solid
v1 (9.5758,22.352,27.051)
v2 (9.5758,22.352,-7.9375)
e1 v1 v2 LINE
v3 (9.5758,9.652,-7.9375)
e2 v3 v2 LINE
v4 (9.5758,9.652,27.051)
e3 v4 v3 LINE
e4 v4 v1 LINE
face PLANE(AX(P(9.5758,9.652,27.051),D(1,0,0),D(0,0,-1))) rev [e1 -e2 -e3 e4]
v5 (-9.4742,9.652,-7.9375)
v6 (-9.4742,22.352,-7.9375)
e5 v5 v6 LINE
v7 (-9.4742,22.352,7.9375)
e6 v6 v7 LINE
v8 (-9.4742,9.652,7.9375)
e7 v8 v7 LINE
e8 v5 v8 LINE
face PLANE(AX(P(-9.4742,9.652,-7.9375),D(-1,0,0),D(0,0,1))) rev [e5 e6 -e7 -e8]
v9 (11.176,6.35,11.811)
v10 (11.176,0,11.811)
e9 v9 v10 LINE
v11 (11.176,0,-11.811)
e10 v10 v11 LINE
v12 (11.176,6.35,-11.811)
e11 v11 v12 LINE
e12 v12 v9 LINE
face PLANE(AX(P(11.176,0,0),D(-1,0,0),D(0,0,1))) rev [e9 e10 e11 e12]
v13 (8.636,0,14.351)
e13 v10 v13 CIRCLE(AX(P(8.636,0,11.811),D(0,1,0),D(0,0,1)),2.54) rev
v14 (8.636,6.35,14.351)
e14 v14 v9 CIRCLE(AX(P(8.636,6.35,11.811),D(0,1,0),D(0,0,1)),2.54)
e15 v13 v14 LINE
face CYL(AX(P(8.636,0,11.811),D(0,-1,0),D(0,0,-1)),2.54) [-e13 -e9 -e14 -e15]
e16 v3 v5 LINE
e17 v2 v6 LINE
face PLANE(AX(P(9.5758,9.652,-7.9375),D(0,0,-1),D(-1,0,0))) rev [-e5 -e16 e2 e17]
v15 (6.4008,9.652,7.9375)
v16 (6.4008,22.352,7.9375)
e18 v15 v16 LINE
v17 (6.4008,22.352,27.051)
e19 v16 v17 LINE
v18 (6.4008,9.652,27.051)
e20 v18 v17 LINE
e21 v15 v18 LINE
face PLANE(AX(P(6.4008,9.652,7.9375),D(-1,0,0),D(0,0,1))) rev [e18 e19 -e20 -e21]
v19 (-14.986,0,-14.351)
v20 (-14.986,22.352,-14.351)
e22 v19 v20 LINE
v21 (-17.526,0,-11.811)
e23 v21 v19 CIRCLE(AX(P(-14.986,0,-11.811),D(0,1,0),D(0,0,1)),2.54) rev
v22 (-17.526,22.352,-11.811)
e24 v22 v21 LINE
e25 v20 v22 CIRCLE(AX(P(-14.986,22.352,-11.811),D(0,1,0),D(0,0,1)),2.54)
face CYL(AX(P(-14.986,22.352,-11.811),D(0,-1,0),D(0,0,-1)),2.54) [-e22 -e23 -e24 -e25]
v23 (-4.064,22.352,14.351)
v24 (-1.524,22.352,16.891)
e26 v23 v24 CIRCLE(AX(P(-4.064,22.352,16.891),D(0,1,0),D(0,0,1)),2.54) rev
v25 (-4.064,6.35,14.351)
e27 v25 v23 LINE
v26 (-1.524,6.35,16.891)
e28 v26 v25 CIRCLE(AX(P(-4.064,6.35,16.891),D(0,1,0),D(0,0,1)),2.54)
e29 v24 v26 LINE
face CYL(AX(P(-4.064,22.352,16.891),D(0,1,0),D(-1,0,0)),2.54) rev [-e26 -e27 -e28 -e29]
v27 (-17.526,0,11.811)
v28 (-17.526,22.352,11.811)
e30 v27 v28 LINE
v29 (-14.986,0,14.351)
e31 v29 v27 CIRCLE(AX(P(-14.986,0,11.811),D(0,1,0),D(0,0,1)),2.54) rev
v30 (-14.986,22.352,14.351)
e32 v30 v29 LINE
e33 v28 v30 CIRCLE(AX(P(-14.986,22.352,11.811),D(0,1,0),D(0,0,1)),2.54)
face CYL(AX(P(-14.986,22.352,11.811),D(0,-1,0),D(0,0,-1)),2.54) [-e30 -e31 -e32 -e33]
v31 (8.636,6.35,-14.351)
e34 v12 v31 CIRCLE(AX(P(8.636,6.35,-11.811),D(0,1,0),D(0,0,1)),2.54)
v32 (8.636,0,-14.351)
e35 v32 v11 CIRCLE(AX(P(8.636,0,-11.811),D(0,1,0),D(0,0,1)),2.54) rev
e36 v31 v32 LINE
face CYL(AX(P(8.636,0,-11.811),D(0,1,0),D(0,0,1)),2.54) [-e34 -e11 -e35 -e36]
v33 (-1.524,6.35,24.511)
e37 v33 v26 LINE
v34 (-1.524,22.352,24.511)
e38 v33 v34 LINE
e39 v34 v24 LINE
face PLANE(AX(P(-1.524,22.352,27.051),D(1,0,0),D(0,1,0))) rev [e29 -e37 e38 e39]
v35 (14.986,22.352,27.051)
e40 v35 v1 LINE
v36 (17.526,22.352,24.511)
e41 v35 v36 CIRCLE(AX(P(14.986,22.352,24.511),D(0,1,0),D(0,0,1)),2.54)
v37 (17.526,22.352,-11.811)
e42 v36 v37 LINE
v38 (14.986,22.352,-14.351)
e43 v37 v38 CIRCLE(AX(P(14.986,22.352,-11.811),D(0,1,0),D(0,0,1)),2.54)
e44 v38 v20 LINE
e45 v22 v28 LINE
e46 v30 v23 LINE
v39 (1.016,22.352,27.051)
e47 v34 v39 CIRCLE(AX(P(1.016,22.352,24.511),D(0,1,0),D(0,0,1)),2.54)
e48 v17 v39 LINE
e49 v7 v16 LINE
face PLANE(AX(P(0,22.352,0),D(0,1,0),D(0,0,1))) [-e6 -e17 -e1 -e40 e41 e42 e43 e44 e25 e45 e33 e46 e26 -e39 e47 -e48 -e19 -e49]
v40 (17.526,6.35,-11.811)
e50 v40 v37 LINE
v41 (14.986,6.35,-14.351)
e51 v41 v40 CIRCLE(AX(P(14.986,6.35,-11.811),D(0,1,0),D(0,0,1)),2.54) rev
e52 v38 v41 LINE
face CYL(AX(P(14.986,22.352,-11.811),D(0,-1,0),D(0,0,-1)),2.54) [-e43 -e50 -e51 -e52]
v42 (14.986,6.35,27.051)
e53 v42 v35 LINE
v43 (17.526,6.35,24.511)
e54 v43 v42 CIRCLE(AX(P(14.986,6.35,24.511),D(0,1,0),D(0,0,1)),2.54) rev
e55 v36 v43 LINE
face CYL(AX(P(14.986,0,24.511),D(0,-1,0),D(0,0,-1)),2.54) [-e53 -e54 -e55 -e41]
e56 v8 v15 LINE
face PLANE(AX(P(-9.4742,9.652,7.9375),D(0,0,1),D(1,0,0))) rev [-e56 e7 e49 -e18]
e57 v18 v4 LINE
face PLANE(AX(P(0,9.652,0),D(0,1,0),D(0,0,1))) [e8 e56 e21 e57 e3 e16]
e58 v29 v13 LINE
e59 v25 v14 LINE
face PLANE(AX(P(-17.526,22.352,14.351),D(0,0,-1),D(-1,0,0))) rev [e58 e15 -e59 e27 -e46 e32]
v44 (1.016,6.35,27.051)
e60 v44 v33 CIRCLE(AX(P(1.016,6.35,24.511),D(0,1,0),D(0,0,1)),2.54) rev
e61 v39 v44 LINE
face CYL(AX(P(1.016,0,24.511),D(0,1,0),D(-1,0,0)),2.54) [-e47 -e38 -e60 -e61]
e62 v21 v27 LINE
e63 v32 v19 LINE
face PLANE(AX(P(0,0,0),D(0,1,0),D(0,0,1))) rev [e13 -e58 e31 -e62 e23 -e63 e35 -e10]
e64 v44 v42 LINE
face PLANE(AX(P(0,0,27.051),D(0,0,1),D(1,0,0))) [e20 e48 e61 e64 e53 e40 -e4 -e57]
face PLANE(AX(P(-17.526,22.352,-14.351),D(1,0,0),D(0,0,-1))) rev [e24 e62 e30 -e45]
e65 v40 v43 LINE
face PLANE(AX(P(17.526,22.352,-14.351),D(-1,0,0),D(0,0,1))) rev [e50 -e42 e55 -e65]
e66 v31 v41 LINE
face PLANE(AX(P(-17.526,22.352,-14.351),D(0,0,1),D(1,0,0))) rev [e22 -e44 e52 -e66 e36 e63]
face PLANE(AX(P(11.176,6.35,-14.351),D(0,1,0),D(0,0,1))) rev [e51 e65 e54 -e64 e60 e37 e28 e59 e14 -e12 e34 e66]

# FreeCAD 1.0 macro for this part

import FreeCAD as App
import Part
import Sketcher
Q = App.Units.Quantity


def edges_at(feature, points):
    """Names of the edges that pass closest to the given points."""
    edges = feature.Shape.Edges
    near = lambda p: min(range(len(edges)), key=lambda i: edges[i].distToShape(Part.Vertex(*p))[0])
    return sorted({f"Edge{near(p) + 1}" for p in points})

doc = App.newDocument("Part")
params = doc.addObject("Spreadsheet::Sheet", "Params")
for row, (alias, value) in enumerate([
    ("sketch1_width", "1.38 in"),
    ("sketch1_height", "1.13 in"),
    ("pad1_length", "0.88 in"),
    ("sketch2_width", "0.25 in"),
    ("sketch2_height", "1.13 in"),
    ("pocket1_length", "0.25 in"),
    ("sketch3_width", "0.75 in"),
    ("sketch3_height", "0.63 in"),
    ("pad2_length", "0.5 in"),
    ("sketch4_width", "0.75 in"),
    ("sketch4_width2", "0.625 in"),
    ("pocket2_length", "0.5 in"),
    ("fillet_radius", "0.1 in"),
    ("fillet2_radius", "0.1 in"),
], start=1):
    params.set(f"A{row}", alias)
    params.set(f"B{row}", "=" + value)
    params.setAlias(f"B{row}", alias)

body = doc.addObject("PartDesign::Body", "Body")

# Sketch on XZ plane
sketch1 = doc.addObject("Sketcher::SketchObject", "Sketch")
body.addObject(sketch1)
sketch1.AttachmentSupport = (doc.XZ_Plane, [""])
sketch1.MapMode = "FlatFace"
sketch1.addGeometry([
    Part.LineSegment(App.Vector(-18, -14, 0), App.Vector(-18, 14, 0)),
    Part.LineSegment(App.Vector(-18, 14, 0), App.Vector(18, 14, 0)),
    Part.LineSegment(App.Vector(18, 14, 0), App.Vector(18, -14, 0)),
    Part.LineSegment(App.Vector(18, -14, 0), App.Vector(-18, -14, 0)),
], False)
sketch1.addConstraint([
    Sketcher.Constraint("Coincident", 0, 2, 1, 1),
    Sketcher.Constraint("Coincident", 1, 2, 2, 1),
    Sketcher.Constraint("Coincident", 2, 2, 3, 1),
    Sketcher.Constraint("Coincident", 3, 2, 0, 1),
    Sketcher.Constraint("Vertical", 0),
    Sketcher.Constraint("Horizontal", 1),
    Sketcher.Constraint("Vertical", 2),
    Sketcher.Constraint("Horizontal", 3),
    Sketcher.Constraint("Symmetric", 0, 2, 2, 2, -1, 1),
    Sketcher.Constraint("DistanceX", 1, 1, 1, 2, Q("1.38 in")),
    Sketcher.Constraint("DistanceY", 0, 1, 0, 2, Q("1.13 in")),
])
sketch1.setExpression("Constraints[9]", "Params.sketch1_width")
sketch1.setExpression("Constraints[10]", "Params.sketch1_height")
pad1 = doc.addObject("PartDesign::Pad", "Pad")
body.addObject(pad1)
pad1.Profile = sketch1
pad1.setExpression("Length", "Params.pad1_length")
pad1.Reversed = True

# Sketch on YZ plane
sketch2 = doc.addObject("Sketcher::SketchObject", "Sketch001")
body.addObject(sketch2)
sketch2.AttachmentSupport = (doc.YZ_Plane, [""])
sketch2.MapMode = "FlatFace"
sketch2.AttachmentOffset = App.Placement(App.Vector(0, 0, 0.69 * 25.4), App.Rotation())
sketch2.addGeometry([
    Part.LineSegment(App.Vector(6, 14, 0), App.Vector(0, 14, 0)),
    Part.LineSegment(App.Vector(0, 14, 0), App.Vector(0, -14, 0)),
    Part.LineSegment(App.Vector(0, -14, 0), App.Vector(6, -14, 0)),
    Part.LineSegment(App.Vector(6, -14, 0), App.Vector(6, 14, 0)),
], False)
sketch2.addConstraint([
    Sketcher.Constraint("Coincident", 0, 2, 1, 1),
    Sketcher.Constraint("Coincident", 1, 2, 2, 1),
    Sketcher.Constraint("Coincident", 2, 2, 3, 1),
    Sketcher.Constraint("Coincident", 3, 2, 0, 1),
    Sketcher.Constraint("Horizontal", 0),
    Sketcher.Constraint("Vertical", 1),
    Sketcher.Constraint("Horizontal", 2),
    Sketcher.Constraint("Vertical", 3),
    Sketcher.Constraint("Symmetric", 0, 2, 1, 2, -1, 1),
    Sketcher.Constraint("DistanceX", 0, 2, 0, 1, Q("0.25 in")),
    Sketcher.Constraint("DistanceY", 1, 2, 1, 1, Q("1.13 in")),
])
sketch2.setExpression("Constraints[9]", "Params.sketch2_width")
sketch2.setExpression("Constraints[10]", "Params.sketch2_height")
pocket1 = doc.addObject("PartDesign::Pocket", "Pocket")
body.addObject(pocket1)
pocket1.Profile = sketch2
pocket1.setExpression("Length", "Params.pocket1_length")

# Sketch on XY plane
sketch3 = doc.addObject("Sketcher::SketchObject", "Sketch002")
body.addObject(sketch3)
sketch3.AttachmentSupport = (doc.XY_Plane, [""])
sketch3.MapMode = "FlatFace"
sketch3.AttachmentOffset = App.Placement(App.Vector(0, 0, 0.565 * 25.4), App.Rotation())
sketch3.addGeometry([
    Part.LineSegment(App.Vector(-2, 22, 0), App.Vector(-2, 6, 0)),
    Part.LineSegment(App.Vector(-2, 6, 0), App.Vector(18, 6, 0)),
    Part.LineSegment(App.Vector(18, 6, 0), App.Vector(18, 22, 0)),
    Part.LineSegment(App.Vector(18, 22, 0), App.Vector(-2, 22, 0)),
], False)
sketch3.addConstraint([
    Sketcher.Constraint("Coincident", 0, 2, 1, 1),
    Sketcher.Constraint("Coincident", 1, 2, 2, 1),
    Sketcher.Constraint("Coincident", 2, 2, 3, 1),
    Sketcher.Constraint("Coincident", 3, 2, 0, 1),
    Sketcher.Constraint("Vertical", 0),
    Sketcher.Constraint("Horizontal", 1),
    Sketcher.Constraint("Vertical", 2),
    Sketcher.Constraint("Horizontal", 3),
    Sketcher.Constraint("DistanceX", 1, 1, 1, 2, Q("0.75 in")),
    Sketcher.Constraint("DistanceY", 0, 2, 0, 1, Q("0.63 in")),
    Sketcher.Constraint("DistanceX", 0, 2, -1, 1, Q("0.06 in")),
    Sketcher.Constraint("DistanceY", -1, 1, 0, 2, Q("0.25 in")),
])
sketch3.setExpression("Constraints[8]", "Params.sketch3_width")
sketch3.setExpression("Constraints[9]", "Params.sketch3_height")
pad2 = doc.addObject("PartDesign::Pad", "Pad001")
body.addObject(pad2)
pad2.Profile = sketch3
pad2.setExpression("Length", "Params.pad2_length")

# Sketch on XZ plane
sketch4 = doc.addObject("Sketcher::SketchObject", "Sketch003")
body.addObject(sketch4)
sketch4.AttachmentSupport = (doc.XZ_Plane, [""])
sketch4.MapMode = "FlatFace"
sketch4.AttachmentOffset = App.Placement(App.Vector(0, 0, -0.88 * 25.4), App.Rotation())
sketch4.addGeometry([
    Part.LineSegment(App.Vector(-9.5, -7.9, 0), App.Vector(-9.5, 7.9, 0)),  # 0
    Part.LineSegment(App.Vector(-9.5, 7.9, 0), App.Vector(6.4, 7.9, 0)),  # 1
    Part.LineSegment(App.Vector(6.4, 7.9, 0), App.Vector(6.4, 27.1, 0)),  # 2
    Part.LineSegment(App.Vector(6.4, 27.1, 0), App.Vector(9.6, 27.1, 0)),  # 3
    Part.LineSegment(App.Vector(9.6, 27.1, 0), App.Vector(9.6, -7.9, 0)),  # 4
    Part.LineSegment(App.Vector(9.6, -7.9, 0), App.Vector(-9.5, -7.9, 0)),  # 5
], False)
sketch4.addConstraint([
    Sketcher.Constraint("Coincident", 0, 2, 1, 1),
    Sketcher.Constraint("Coincident", 1, 2, 2, 1),
    Sketcher.Constraint("Coincident", 2, 2, 3, 1),
    Sketcher.Constraint("Coincident", 3, 2, 4, 1),
    Sketcher.Constraint("Coincident", 4, 2, 5, 1),
    Sketcher.Constraint("Coincident", 5, 2, 0, 1),
    Sketcher.Constraint("Vertical", 0),
    Sketcher.Constraint("Horizontal", 1),
    Sketcher.Constraint("Vertical", 2),
    Sketcher.Constraint("Horizontal", 3),
    Sketcher.Constraint("Vertical", 4),
    Sketcher.Constraint("Horizontal", 5),
    Sketcher.Constraint("Equal", 1, 0),
    Sketcher.Constraint("DistanceX", 5, 2, 5, 1, Q("0.75 in")),
    Sketcher.Constraint("DistanceX", 1, 1, 1, 2, Q("0.625 in")),
    Sketcher.Constraint("DistanceY", 2, 1, 2, 2, Q("0.7525 in")),
    Sketcher.Constraint("DistanceX", 0, 2, -1, 1, Q("0.373 in")),
    Sketcher.Constraint("DistanceY", -1, 1, 0, 2, Q("0.3125 in")),
])
sketch4.setExpression("Constraints[13]", "Params.sketch4_width")
sketch4.setExpression("Constraints[14]", "Params.sketch4_width2")
pocket2 = doc.addObject("PartDesign::Pocket", "Pocket001")
body.addObject(pocket2)
pocket2.Profile = sketch4
pocket2.setExpression("Length", "Params.pocket2_length")
pocket2.Reversed = True
doc.recompute()

fillet = doc.addObject("PartDesign::Fillet", "Fillet")
body.addObject(fillet)
fillet.Base = (pocket2, edges_at(pocket2, [
    (11.176, 3.175, -14.351),
    (-1.524, 14.351, 14.351),
    (-17.526, 11.176, 14.351),
    (-17.526, 11.176, -14.351),
    (17.526, 14.351, -14.351),
]))
fillet.setExpression("Radius", "Params.fillet_radius")
doc.recompute()

fillet2 = doc.addObject("PartDesign::Fillet", "Fillet001")
body.addObject(fillet2)
fillet2.Base = (fillet, edges_at(fillet, [(11.176, 3.175, 14.351), (-1.524, 14.351, 27.051), (17.526, 14.351, 27.051)]))
fillet2.setExpression("Radius", "Params.fillet2_radius")

doc.recompute()
